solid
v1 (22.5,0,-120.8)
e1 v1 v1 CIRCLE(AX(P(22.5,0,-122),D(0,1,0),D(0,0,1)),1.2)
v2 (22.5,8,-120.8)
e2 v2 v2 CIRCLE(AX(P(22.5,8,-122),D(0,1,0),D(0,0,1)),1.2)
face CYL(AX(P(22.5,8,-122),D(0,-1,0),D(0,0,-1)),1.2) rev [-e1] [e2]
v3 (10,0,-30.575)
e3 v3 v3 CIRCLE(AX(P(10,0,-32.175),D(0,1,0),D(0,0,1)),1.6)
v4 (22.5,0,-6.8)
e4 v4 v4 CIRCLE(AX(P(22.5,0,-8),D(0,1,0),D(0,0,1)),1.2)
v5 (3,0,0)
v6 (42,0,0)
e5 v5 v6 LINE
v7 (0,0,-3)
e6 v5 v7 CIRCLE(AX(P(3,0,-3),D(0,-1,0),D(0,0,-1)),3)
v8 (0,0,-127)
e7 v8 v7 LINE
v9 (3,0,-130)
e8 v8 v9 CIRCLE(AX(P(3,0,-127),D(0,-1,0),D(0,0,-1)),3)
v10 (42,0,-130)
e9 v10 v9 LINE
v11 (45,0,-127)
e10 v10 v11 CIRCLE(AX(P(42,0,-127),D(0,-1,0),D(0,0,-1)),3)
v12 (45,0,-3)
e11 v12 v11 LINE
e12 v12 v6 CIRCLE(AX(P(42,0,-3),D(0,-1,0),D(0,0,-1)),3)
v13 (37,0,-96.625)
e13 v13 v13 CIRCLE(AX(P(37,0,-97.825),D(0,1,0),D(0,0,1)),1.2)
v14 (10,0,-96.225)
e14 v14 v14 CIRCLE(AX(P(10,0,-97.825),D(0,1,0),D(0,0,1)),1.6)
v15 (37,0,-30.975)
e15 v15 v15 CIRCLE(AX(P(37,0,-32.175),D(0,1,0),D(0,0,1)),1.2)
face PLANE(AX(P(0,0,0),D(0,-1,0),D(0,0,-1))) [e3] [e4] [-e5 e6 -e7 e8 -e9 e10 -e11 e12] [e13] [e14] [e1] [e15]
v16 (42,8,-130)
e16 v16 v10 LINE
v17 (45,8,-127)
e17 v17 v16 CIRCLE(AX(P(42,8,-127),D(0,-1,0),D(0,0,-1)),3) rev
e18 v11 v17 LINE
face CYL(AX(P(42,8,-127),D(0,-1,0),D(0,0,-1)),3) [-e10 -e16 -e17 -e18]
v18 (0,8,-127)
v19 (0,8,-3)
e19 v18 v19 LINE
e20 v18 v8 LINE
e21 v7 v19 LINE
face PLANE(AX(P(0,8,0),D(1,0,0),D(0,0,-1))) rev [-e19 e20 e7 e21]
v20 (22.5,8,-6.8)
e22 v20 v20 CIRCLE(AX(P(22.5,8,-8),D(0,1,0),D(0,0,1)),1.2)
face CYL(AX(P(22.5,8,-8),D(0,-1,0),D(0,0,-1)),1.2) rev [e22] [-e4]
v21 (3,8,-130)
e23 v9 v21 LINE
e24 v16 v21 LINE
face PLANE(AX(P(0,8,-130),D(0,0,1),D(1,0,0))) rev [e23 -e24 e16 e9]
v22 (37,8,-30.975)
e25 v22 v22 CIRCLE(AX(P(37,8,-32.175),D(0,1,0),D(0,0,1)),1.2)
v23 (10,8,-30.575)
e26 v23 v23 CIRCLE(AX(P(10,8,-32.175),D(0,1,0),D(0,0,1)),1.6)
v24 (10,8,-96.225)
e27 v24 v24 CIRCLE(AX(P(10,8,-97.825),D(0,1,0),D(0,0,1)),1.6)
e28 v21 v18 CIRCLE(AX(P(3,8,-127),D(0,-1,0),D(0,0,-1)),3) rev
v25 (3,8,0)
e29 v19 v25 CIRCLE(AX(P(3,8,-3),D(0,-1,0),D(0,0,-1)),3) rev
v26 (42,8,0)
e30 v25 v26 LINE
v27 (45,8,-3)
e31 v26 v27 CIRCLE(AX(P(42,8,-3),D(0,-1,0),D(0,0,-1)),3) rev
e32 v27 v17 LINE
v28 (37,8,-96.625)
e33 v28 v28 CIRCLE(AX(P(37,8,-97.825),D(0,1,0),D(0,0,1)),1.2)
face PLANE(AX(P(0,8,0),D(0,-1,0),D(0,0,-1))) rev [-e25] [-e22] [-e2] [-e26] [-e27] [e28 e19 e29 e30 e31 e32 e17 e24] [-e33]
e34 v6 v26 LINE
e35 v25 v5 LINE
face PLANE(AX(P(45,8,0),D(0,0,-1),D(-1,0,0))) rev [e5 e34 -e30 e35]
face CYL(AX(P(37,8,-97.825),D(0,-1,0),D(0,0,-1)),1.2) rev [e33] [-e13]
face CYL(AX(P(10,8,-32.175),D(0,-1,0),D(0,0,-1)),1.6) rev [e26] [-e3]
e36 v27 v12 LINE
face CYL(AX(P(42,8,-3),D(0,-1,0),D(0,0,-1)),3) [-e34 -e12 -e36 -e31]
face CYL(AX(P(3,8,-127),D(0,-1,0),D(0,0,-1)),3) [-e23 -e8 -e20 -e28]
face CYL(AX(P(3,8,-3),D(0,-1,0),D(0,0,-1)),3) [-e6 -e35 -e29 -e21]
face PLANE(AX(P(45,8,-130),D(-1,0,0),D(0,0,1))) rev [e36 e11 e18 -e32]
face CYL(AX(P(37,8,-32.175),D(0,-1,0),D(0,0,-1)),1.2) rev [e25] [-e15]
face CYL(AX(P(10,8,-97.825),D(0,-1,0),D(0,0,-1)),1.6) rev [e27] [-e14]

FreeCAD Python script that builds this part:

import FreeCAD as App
import Part
import Sketcher
Q = App.Units.Quantity


def edges_at(feature, points):
    """Names of the edges that pass closest to the given points."""
    edges = feature.Shape.Edges
    near = lambda p: min(range(len(edges)), key=lambda i: edges[i].distToShape(Part.Vertex(*p))[0])
    return sorted({f"Edge{near(p) + 1}" for p in points})


def add_polygon(sketch, points):
    """Adds a closed chain of lines whose ends are joined by coincident constraints."""
    first, n = sketch.GeometryCount, len(points)
    for a, b in zip(points, points[1:] + points[:1]):
        sketch.addGeometry(Part.LineSegment(App.Vector(*a, 0), App.Vector(*b, 0)), False)
    for i in range(n):
        sketch.addConstraint(Sketcher.Constraint("Coincident", first + i, 2, first + (i + 1) % n, 1))

doc = App.newDocument("Part")
params = doc.addObject("Spreadsheet::Sheet", "Params")
for row, (alias, value) in enumerate([
    ("sketch1_diameter", "3.2 mm"),
    ("sketch1_diameter2", "2.4 mm"),
    ("sketch1_width", "45 mm"),
    ("sketch1_height", "130 mm"),
    ("pad1_length", "8 mm"),
    ("fillet_radius", "3 mm"),
], start=1):
    params.set(f"A{row}", alias)
    params.set(f"B{row}", "=" + value)
    params.setAlias(f"B{row}", alias)

body = doc.addObject("PartDesign::Body", "Body")

# Sketch on XZ plane
sketch1 = body.newObject("Sketcher::SketchObject", "Sketch")
sketch1.AttachmentSupport = (doc.getObject("XZ_Plane"), [""])
sketch1.MapMode = "FlatFace"
add_polygon(sketch1, [(0, -130), (0, 0), (45, 0), (45, -130)])  # lines 0-3
sketch1.addGeometry(Part.Circle(App.Vector(10, -32.2, 0), App.Vector(0, 0, 1), 1.6), False)  # 4
sketch1.addGeometry(Part.Circle(App.Vector(22.5, -8, 0), App.Vector(0, 0, 1), 1.2), False)  # 5
sketch1.addGeometry(Part.Circle(App.Vector(37, -32.2, 0), App.Vector(0, 0, 1), 1.2), False)  # 6
sketch1.addGeometry(Part.Circle(App.Vector(10, -97.8, 0), App.Vector(0, 0, 1), 1.6), False)  # 7
sketch1.addGeometry(Part.Circle(App.Vector(22.5, -122, 0), App.Vector(0, 0, 1), 1.2), False)  # 8
sketch1.addGeometry(Part.Circle(App.Vector(37, -97.8, 0), App.Vector(0, 0, 1), 1.2), False)  # 9
sketch1.addConstraint(Sketcher.Constraint("Vertical", 0))
sketch1.addConstraint(Sketcher.Constraint("Horizontal", 1))
sketch1.addConstraint(Sketcher.Constraint("Vertical", 2))
sketch1.addConstraint(Sketcher.Constraint("Horizontal", 3))
sketch1.addConstraint(Sketcher.Constraint("Coincident", 0, 2, -1, 1))
sketch1.addConstraint(Sketcher.Constraint("Equal", 5, 6))
sketch1.addConstraint(Sketcher.Constraint("Equal", 4, 7))
sketch1.addConstraint(Sketcher.Constraint("Equal", 6, 8))
sketch1.addConstraint(Sketcher.Constraint("Equal", 8, 9))
sketch1.addConstraint(Sketcher.Constraint("Horizontal", 4, 3, 6, 3))
sketch1.addConstraint(Sketcher.Constraint("Horizontal", 7, 3, 9, 3))
sketch1.addConstraint(Sketcher.Constraint("Vertical", 4, 3, 7, 3))
sketch1.addConstraint(Sketcher.Constraint("Vertical", 5, 3, 8, 3))
sketch1.addConstraint(Sketcher.Constraint("Vertical", 6, 3, 9, 3))
sketch1.addConstraint(Sketcher.Constraint("Diameter", 4, Q("3.2 mm")))
sketch1.addConstraint(Sketcher.Constraint("Diameter", 5, Q("2.4 mm")))
sketch1.addConstraint(Sketcher.Constraint("DistanceX", 1, 1, 1, 2, Q("45 mm")))
sketch1.addConstraint(Sketcher.Constraint("DistanceY", 0, 1, 0, 2, Q("130 mm")))
sketch1.addConstraint(Sketcher.Constraint("DistanceX", -1, 1, 4, 3, Q("10 mm")))
sketch1.addConstraint(Sketcher.Constraint("DistanceY", 5, 3, -1, 1, Q("8 mm")))
sketch1.addConstraint(Sketcher.Constraint("DistanceX", -1, 1, 6, 3, Q("37 mm")))
sketch1.addConstraint(Sketcher.Constraint("DistanceY", 8, 3, -1, 1, Q("122 mm")))
sketch1.addConstraint(Sketcher.Constraint("DistanceX", -1, 1, 5, 3, Q("22.5 mm")))
sketch1.addConstraint(Sketcher.Constraint("DistanceY", 7, 3, 4, 3, Q("65.65 mm")))
sketch1.addConstraint(Sketcher.Constraint("DistanceY", 4, 3, -1, 1, Q("32.175 mm")))
sketch1.setExpression("Constraints[18]", "Params.sketch1_diameter")
sketch1.setExpression("Constraints[19]", "Params.sketch1_diameter2")
sketch1.setExpression("Constraints[20]", "Params.sketch1_width")
sketch1.setExpression("Constraints[21]", "Params.sketch1_height")
pad1 = body.newObject("PartDesign::Pad", "Pad")
pad1.Profile = sketch1
pad1.setExpression("Length", "Params.pad1_length")
pad1.Reversed = True
doc.recompute()

fillet = body.newObject("PartDesign::Fillet", "Fillet")
fillet.Base = (pad1, edges_at(pad1, [
    (0, 4, 0),
    (0, 4, -130),
    (45, 4, -130),
    (45, 4, 0),
]))
fillet.setExpression("Radius", "Params.fillet_radius")

doc.recompute()
